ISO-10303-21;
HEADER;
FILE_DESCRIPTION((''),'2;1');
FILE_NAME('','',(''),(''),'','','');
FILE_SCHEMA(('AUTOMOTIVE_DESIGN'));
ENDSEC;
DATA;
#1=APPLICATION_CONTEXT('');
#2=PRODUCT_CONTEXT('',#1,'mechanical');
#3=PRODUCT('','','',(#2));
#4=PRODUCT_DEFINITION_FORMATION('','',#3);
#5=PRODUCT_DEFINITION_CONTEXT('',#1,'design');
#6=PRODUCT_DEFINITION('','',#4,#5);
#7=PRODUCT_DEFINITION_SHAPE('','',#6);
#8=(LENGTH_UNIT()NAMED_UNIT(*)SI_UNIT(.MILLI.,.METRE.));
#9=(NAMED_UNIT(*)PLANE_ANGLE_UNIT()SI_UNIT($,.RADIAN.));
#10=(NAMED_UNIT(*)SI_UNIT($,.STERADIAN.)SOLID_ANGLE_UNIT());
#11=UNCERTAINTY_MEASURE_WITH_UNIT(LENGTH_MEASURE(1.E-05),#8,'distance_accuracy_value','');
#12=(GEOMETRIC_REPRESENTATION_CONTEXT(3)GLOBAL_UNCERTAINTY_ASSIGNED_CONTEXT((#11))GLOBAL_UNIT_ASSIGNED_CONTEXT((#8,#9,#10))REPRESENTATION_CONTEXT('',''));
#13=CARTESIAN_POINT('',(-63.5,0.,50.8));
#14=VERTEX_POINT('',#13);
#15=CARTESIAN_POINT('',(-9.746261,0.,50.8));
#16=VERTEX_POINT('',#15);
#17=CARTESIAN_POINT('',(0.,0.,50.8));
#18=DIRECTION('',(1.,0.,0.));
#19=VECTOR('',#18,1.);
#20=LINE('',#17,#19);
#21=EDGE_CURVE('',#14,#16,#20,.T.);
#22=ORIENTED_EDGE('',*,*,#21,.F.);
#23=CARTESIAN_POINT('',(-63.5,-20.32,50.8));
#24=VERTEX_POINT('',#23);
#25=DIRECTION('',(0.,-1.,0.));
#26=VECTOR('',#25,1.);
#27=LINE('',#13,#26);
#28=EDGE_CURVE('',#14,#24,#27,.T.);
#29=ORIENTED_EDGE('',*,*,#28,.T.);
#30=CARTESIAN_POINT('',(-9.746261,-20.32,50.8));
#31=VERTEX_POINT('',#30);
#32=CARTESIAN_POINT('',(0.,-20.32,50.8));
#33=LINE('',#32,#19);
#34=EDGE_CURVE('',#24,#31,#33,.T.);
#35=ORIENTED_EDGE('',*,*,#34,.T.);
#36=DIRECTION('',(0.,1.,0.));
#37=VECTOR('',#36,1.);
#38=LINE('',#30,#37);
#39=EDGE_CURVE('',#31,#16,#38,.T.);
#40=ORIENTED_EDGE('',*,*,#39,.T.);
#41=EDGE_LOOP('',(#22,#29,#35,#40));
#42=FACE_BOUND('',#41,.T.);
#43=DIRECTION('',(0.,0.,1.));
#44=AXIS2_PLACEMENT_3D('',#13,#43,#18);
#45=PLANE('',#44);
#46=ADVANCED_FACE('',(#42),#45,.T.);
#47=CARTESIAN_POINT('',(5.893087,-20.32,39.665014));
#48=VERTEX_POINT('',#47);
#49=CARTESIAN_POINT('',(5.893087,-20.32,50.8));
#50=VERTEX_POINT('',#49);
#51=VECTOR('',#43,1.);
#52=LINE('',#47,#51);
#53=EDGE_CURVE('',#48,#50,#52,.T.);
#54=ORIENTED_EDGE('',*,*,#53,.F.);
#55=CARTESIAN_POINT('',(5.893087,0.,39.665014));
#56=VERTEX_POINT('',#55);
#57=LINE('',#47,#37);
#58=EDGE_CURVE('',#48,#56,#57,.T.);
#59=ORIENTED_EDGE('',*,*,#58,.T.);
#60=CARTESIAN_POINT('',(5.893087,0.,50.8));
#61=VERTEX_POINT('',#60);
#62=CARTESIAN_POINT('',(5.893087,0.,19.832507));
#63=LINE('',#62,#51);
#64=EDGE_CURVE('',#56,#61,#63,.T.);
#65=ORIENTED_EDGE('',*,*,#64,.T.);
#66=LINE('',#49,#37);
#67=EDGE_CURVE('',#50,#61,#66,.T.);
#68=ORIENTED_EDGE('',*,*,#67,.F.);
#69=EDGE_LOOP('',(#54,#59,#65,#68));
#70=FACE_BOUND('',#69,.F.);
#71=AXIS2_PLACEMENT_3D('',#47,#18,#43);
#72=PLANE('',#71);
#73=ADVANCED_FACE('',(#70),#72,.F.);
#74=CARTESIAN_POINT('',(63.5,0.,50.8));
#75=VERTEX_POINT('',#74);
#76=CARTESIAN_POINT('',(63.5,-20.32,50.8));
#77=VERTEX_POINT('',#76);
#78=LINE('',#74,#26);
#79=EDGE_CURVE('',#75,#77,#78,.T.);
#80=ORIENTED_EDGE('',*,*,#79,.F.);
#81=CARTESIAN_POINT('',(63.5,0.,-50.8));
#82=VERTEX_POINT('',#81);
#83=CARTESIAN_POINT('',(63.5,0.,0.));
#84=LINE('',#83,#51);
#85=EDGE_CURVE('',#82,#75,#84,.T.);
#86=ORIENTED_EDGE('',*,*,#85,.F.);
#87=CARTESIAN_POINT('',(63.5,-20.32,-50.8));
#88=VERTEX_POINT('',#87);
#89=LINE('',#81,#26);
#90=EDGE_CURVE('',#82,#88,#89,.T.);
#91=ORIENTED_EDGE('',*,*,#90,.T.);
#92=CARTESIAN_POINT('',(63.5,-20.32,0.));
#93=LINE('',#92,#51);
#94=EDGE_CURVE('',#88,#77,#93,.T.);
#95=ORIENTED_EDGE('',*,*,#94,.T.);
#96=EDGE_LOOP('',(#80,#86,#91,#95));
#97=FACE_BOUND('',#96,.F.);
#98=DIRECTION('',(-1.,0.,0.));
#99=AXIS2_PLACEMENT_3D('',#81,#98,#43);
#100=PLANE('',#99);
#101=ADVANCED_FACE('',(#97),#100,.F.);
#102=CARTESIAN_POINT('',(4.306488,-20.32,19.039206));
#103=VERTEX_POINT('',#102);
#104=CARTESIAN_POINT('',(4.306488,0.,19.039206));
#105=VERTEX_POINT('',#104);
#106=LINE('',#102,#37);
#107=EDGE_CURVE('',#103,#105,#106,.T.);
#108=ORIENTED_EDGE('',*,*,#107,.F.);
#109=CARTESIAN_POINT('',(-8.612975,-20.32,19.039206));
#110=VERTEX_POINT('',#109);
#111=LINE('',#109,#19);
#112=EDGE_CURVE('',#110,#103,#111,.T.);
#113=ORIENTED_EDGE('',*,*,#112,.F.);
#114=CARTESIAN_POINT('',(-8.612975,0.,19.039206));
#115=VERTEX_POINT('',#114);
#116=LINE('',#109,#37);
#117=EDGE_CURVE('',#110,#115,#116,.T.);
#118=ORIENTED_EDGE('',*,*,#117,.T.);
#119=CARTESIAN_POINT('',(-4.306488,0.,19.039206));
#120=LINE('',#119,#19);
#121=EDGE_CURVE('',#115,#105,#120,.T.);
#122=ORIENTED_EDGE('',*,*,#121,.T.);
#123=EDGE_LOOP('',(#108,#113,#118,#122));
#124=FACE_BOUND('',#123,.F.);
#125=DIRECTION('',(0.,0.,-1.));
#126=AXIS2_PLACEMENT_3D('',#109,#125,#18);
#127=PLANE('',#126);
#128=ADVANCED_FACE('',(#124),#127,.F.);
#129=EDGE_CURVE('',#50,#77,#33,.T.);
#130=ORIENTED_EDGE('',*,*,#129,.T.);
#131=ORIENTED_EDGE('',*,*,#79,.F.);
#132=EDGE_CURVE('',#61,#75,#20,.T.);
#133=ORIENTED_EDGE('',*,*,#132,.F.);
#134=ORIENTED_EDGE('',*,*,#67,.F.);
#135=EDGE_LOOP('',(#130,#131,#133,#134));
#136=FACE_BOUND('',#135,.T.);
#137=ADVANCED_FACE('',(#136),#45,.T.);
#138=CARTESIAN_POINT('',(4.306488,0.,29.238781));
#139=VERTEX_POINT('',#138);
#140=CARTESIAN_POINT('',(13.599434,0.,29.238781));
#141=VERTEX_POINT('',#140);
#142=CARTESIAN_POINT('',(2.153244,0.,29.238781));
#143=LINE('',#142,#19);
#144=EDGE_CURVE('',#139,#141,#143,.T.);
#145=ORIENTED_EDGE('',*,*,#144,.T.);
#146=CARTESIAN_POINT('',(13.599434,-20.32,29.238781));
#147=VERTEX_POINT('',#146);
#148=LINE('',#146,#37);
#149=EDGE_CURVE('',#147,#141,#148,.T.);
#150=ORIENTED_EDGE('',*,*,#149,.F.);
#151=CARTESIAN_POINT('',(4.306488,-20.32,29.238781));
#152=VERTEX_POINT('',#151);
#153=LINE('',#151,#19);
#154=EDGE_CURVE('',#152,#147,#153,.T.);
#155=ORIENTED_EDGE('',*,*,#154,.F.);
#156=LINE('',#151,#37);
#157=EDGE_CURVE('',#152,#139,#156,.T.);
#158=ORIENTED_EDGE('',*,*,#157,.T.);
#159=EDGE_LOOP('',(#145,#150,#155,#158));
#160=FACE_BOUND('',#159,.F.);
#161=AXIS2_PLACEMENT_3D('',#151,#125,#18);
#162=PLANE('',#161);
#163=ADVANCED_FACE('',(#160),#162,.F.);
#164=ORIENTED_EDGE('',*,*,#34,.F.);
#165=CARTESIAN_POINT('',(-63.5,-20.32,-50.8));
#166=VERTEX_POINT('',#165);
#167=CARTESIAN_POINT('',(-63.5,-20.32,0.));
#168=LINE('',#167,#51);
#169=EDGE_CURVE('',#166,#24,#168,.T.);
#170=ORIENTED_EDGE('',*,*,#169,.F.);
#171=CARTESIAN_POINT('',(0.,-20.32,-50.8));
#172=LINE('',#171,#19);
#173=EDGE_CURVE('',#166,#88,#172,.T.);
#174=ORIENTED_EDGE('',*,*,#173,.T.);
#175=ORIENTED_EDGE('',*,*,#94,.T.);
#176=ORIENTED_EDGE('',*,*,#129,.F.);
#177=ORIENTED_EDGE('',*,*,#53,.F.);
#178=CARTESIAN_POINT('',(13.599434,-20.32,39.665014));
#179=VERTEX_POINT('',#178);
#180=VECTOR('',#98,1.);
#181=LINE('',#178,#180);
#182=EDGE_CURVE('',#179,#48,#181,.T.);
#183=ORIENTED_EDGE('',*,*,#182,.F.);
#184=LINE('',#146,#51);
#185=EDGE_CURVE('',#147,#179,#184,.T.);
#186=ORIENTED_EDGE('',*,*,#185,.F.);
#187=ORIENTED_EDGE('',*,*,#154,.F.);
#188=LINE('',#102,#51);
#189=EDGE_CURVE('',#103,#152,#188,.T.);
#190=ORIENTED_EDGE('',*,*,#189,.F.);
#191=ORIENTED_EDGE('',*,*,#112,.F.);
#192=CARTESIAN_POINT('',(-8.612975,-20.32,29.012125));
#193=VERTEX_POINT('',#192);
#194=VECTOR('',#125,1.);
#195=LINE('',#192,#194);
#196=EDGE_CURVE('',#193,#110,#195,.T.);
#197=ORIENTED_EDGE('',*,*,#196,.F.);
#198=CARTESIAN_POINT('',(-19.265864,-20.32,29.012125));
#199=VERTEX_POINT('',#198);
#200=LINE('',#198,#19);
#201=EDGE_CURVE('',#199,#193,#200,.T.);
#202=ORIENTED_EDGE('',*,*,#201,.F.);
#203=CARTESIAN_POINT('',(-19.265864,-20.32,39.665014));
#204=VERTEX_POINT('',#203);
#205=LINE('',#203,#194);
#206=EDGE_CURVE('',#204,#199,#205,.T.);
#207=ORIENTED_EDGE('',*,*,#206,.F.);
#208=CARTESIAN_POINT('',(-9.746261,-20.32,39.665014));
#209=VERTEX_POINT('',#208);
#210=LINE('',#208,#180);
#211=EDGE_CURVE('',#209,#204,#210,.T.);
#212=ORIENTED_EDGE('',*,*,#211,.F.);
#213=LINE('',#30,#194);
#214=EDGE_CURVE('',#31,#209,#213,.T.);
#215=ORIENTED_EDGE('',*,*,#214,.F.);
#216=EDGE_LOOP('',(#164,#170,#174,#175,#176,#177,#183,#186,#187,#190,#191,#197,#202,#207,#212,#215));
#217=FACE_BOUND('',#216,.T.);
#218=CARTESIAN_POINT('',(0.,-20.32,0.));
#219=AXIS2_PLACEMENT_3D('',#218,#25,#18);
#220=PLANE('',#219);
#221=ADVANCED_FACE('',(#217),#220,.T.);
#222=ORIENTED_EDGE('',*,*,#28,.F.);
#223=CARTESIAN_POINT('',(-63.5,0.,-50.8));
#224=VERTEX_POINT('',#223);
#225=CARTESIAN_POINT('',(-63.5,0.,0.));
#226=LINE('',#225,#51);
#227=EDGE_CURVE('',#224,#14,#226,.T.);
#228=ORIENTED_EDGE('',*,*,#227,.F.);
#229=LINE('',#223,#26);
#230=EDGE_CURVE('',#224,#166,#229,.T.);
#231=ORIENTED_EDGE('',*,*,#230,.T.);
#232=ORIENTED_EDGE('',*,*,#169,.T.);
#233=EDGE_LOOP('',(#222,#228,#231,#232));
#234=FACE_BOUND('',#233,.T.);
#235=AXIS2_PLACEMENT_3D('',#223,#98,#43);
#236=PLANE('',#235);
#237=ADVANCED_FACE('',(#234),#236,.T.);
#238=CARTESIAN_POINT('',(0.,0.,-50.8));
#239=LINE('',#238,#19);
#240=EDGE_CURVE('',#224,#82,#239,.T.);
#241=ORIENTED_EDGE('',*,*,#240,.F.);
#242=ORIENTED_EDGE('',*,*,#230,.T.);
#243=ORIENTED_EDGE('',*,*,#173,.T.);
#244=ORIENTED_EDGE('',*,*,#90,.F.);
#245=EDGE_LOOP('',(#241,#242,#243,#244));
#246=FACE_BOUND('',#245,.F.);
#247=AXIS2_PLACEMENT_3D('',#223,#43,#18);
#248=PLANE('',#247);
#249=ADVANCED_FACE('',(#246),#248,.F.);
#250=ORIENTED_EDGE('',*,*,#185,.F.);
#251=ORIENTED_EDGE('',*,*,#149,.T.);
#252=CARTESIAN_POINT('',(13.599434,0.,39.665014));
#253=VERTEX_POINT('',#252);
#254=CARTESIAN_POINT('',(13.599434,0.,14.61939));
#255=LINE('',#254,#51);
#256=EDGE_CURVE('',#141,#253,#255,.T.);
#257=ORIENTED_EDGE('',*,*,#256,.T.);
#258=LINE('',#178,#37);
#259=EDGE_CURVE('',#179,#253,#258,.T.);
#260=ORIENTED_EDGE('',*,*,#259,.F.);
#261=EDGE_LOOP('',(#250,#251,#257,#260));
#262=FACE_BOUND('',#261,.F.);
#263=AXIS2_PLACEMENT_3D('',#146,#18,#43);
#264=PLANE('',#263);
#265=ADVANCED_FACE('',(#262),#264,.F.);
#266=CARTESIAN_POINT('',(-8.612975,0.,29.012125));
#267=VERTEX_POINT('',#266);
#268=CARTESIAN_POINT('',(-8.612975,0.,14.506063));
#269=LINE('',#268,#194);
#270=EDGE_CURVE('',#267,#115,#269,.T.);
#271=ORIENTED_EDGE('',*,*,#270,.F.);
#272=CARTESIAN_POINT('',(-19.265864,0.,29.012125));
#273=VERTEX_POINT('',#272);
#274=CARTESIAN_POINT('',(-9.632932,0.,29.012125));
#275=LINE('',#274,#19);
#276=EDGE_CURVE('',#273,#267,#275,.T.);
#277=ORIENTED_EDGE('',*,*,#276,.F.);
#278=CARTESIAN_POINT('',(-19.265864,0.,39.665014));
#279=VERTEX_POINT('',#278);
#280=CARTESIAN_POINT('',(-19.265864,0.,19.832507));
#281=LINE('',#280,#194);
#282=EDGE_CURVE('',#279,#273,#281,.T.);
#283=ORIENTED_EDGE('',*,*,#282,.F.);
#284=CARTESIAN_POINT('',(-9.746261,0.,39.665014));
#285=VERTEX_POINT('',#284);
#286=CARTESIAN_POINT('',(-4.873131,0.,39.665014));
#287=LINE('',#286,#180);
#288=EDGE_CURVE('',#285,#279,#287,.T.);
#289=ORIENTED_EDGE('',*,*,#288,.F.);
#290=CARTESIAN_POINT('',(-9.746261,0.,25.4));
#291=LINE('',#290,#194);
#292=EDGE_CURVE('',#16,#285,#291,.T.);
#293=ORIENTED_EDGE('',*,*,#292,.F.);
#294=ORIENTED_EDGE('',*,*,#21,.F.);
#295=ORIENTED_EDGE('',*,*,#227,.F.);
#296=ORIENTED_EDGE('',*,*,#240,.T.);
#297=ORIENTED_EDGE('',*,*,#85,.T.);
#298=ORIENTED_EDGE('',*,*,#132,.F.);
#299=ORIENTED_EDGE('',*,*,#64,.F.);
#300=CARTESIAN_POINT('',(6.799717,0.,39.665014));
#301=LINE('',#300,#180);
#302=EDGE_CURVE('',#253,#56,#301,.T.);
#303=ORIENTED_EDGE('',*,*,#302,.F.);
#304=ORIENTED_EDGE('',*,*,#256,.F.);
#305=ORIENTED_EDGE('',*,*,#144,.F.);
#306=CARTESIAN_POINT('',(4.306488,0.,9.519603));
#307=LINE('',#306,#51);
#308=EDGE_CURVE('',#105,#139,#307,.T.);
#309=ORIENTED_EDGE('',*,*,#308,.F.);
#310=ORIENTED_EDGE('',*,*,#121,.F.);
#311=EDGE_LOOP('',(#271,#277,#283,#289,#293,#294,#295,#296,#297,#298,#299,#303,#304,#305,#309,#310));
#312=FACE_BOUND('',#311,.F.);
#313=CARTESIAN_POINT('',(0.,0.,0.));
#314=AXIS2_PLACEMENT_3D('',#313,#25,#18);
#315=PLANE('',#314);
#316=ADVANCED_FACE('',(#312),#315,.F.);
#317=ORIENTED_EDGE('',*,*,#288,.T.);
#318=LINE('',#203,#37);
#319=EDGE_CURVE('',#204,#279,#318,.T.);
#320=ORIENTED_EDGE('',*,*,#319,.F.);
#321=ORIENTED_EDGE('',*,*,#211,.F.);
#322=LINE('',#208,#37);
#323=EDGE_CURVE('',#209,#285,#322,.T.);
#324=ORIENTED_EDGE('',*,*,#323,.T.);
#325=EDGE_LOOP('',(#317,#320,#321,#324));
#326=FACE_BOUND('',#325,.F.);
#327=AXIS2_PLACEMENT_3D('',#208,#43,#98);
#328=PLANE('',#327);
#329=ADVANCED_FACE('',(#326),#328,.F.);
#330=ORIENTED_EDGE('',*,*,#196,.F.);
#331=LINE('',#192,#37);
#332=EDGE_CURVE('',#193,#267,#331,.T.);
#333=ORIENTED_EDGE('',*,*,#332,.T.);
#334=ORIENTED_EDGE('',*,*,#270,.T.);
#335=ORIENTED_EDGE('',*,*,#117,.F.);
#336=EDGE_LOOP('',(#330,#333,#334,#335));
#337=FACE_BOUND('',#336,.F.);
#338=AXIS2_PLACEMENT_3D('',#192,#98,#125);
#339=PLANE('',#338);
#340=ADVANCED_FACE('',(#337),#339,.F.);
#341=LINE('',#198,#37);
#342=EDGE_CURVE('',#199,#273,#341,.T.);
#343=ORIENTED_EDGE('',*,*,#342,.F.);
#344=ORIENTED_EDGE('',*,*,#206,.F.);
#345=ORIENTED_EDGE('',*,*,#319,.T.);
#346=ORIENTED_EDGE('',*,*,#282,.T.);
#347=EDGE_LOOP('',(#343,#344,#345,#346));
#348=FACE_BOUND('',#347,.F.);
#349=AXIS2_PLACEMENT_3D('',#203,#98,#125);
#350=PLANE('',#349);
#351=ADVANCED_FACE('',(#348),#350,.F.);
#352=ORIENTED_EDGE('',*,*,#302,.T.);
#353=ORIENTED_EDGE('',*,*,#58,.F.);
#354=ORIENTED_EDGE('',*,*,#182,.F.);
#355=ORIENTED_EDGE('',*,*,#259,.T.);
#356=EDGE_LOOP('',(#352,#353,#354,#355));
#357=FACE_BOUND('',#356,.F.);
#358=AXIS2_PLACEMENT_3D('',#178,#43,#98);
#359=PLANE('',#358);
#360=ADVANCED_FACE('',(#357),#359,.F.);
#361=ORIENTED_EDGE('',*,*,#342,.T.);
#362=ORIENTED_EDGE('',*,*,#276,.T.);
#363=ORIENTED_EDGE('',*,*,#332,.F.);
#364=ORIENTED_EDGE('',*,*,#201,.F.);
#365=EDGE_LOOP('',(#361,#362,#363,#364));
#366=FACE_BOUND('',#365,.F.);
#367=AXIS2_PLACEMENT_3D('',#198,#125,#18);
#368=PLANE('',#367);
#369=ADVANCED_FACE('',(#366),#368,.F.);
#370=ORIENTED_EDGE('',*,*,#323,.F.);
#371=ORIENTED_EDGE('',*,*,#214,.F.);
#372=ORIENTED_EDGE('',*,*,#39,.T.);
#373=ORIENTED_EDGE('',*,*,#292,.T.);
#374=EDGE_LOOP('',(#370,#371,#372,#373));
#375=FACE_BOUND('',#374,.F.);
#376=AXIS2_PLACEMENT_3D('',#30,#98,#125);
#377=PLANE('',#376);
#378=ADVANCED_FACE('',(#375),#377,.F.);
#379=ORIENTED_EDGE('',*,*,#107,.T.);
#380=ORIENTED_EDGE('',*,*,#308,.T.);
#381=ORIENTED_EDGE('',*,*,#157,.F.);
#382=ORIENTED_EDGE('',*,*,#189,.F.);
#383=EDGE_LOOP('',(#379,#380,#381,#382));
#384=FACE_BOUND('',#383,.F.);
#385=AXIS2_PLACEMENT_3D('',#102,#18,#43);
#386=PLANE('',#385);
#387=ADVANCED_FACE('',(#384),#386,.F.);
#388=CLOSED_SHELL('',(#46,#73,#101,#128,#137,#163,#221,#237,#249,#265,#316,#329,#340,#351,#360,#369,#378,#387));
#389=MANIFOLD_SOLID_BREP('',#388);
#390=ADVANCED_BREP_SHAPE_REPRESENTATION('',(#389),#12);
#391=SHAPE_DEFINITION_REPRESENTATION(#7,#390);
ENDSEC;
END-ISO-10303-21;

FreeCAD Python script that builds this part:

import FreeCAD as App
import Part
import Sketcher
Q = App.Units.Quantity


def add_polygon(sketch, points):
    """Adds a closed chain of lines whose ends are joined by coincident constraints."""
    first, n = sketch.GeometryCount, len(points)
    for a, b in zip(points, points[1:] + points[:1]):
        sketch.addGeometry(Part.LineSegment(App.Vector(*a, 0), App.Vector(*b, 0)), False)
    for i in range(n):
        sketch.addConstraint(Sketcher.Constraint("Coincident", first + i, 2, first + (i + 1) % n, 1))

doc = App.newDocument("Part")
body = doc.addObject("PartDesign::Body", "Body")

sketch1 = doc.addObject("Sketcher::SketchObject", "Sketch")
body.addObject(sketch1)
sketch1.AttachmentSupport = (doc.XZ_Plane, [""])
sketch1.MapMode = "FlatFace"
add_polygon(sketch1, [(-64, 51), (-64, -51), (64, -51), (64, 51)])
sketch1.addConstraint([
    Sketcher.Constraint("Vertical", 0),
    Sketcher.Constraint("Horizontal", 1),
    Sketcher.Constraint("Vertical", 2),
    Sketcher.Constraint("Horizontal", 3),
    Sketcher.Constraint("Symmetric", 0, 2, 2, 2, -1, 1),
    Sketcher.Constraint("DistanceX", 1, 1, 1, 2, Q("5 in")),
    Sketcher.Constraint("DistanceY", 0, 2, 0, 1, Q("4 in")),
])
pad1 = doc.addObject("PartDesign::Pad", "Pad")
body.addObject(pad1)
pad1.Profile = sketch1
pad1.Length = Q("0.8 in")

sketch2 = doc.addObject("Sketcher::SketchObject", "Sketch001")
body.addObject(sketch2)
sketch2.AttachmentSupport = (doc.XZ_Plane, [""])
sketch2.MapMode = "FlatFace"
sketch2.AttachmentOffset = App.Placement(App.Vector(0, 0, 0.8 * 25.4), App.Rotation())
add_polygon(sketch2, [(6, 51), (-10, 51), (-10, 40), (-19, 40), (-19, 29), (-9, 29), (-9, 19), (4, 19), (4, 29), (14, 29), (14, 40), (6, 40)])
sketch2.addConstraint([
    Sketcher.Constraint("Horizontal", 0),
    Sketcher.Constraint("Vertical", 1),
    Sketcher.Constraint("Horizontal", 2),
    Sketcher.Constraint("Vertical", 3),
    Sketcher.Constraint("Horizontal", 4),
    Sketcher.Constraint("Vertical", 5),
    Sketcher.Constraint("Horizontal", 6),
    Sketcher.Constraint("Vertical", 7),
    Sketcher.Constraint("Horizontal", 8),
    Sketcher.Constraint("Vertical", 9),
    Sketcher.Constraint("Horizontal", 10),
    Sketcher.Constraint("Vertical", 11),
    Sketcher.Constraint("Horizontal", 2, 2, 9, 2),
    Sketcher.Constraint("Equal", 4, 3),
    Sketcher.Constraint("DistanceY", -1, 1, 0, 2, Q("2 in")),
    Sketcher.Constraint("DistanceX", 0, 2, 0, 1, 15.639348),
    Sketcher.Constraint("DistanceX", 4, 1, 4, 2, 10.652889),
    Sketcher.Constraint("DistanceY", 5, 2, 5, 1, 9.972919),
    Sketcher.Constraint("DistanceX", 7, 2, 10, 2, 1.586599),
    Sketcher.Constraint("DistanceX", 2, 2, 2, 1, 9.519603),
    Sketcher.Constraint("DistanceX", 8, 1, 8, 2, 9.292946),
    Sketcher.Constraint("DistanceY", 1, 2, 1, 1, 11.134986),
    Sketcher.Constraint("DistanceY", 7, 1, 7, 2, 10.199575),
    Sketcher.Constraint("DistanceX", 0, 2, -1, 1, 9.746261),
])
pocket1 = doc.addObject("PartDesign::Pocket", "Pocket")
body.addObject(pocket1)
pocket1.Profile = sketch2
pocket1.Length = Q("1 in")

doc.recompute()
